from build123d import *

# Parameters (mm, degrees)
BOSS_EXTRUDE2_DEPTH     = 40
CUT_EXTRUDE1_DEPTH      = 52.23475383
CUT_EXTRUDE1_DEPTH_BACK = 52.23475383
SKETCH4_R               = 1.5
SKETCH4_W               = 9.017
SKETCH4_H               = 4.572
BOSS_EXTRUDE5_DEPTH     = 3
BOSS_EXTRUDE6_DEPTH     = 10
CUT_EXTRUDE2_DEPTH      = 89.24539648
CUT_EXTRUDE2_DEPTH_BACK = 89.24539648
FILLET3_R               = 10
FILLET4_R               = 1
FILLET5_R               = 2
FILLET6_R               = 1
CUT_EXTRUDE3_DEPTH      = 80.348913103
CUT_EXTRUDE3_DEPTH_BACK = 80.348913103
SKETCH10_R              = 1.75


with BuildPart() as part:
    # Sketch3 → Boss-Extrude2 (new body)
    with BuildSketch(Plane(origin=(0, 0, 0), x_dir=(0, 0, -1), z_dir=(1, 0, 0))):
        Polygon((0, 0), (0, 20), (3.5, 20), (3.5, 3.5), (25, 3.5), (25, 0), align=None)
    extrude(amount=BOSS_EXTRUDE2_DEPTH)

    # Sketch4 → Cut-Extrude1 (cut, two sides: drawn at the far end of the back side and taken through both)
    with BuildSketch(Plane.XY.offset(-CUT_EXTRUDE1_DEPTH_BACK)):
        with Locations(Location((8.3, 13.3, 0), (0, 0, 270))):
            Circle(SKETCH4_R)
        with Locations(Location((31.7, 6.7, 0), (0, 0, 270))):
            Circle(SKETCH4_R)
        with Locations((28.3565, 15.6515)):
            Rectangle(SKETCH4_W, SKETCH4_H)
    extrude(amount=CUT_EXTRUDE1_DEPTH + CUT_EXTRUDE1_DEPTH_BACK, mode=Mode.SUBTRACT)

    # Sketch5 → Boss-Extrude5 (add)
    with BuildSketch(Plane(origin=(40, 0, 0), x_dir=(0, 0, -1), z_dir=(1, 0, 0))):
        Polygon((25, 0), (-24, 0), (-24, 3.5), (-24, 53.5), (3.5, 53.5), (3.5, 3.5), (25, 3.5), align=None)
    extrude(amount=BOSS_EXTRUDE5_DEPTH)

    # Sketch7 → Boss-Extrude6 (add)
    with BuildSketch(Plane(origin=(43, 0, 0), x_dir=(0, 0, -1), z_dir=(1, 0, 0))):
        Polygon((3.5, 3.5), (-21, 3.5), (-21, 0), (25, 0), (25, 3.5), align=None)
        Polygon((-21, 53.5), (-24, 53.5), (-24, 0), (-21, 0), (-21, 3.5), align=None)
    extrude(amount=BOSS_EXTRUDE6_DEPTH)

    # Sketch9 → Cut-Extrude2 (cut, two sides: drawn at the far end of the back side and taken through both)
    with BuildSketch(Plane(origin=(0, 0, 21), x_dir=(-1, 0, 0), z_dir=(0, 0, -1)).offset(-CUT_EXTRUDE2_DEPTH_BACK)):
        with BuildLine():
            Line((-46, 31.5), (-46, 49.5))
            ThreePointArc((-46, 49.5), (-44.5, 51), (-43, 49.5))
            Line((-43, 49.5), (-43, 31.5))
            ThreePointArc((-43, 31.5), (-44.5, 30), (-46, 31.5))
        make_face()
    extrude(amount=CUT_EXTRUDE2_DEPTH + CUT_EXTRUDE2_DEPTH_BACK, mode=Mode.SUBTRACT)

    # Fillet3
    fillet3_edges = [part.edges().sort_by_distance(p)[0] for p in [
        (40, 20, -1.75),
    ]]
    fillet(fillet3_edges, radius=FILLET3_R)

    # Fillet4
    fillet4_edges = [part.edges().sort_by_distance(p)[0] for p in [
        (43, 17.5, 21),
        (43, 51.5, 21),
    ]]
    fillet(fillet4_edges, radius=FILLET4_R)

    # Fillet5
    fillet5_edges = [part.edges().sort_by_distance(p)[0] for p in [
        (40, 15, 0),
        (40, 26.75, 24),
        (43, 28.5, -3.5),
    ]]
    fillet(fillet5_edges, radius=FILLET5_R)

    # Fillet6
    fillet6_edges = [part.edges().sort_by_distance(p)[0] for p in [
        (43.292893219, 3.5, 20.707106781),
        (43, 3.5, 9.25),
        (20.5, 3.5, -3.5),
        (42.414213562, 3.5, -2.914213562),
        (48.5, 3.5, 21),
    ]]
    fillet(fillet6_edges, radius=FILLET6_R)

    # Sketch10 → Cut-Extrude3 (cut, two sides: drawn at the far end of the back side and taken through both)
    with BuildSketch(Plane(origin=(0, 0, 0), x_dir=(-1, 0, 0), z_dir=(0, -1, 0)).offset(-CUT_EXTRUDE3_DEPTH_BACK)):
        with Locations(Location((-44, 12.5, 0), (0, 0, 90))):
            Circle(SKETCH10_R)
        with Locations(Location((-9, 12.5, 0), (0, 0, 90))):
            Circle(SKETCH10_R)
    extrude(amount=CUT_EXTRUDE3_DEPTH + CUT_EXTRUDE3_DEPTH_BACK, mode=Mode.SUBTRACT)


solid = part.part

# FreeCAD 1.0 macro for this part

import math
import FreeCAD as App
import Part
import Sketcher

V = App.Vector
Q = App.Units.Quantity


def edges_at(feature, points):
    """Names of the edges that pass closest to the given points."""
    edges = feature.Shape.Edges
    near = lambda p: min(range(len(edges)), key=lambda i: edges[i].distToShape(Part.Vertex(*p))[0])
    return sorted({f"Edge{near(p) + 1}" for p in points})

doc = App.newDocument("Part")
body = doc.addObject("PartDesign::Body", "Body")

# Sketch on YZ plane
sketch1 = doc.addObject("Sketcher::SketchObject", "Sketch")
body.addObject(sketch1)
sketch1.AttachmentSupport = (doc.YZ_Plane, [""])
sketch1.MapMode = "FlatFace"
sketch1.addGeometry(Part.LineSegment(V(20, 0, 0), V(0, 0, 0)), False)
sketch1.addGeometry(Part.LineSegment(V(0, 0, 0), V(0, -25, 0)), False)
sketch1.addGeometry(Part.LineSegment(V(0, -25, 0), V(3.5, -25, 0)), False)
sketch1.addGeometry(Part.LineSegment(V(3.5, -25, 0), V(3.5, -3.5, 0)), False)
sketch1.addGeometry(Part.LineSegment(V(3.5, -3.5, 0), V(20, -3.5, 0)), False)
sketch1.addGeometry(Part.LineSegment(V(20, -3.5, 0), V(20, 0, 0)), False)
sketch1.addConstraint(Sketcher.Constraint("Coincident", 0, 2, 1, 1))
sketch1.addConstraint(Sketcher.Constraint("Coincident", 1, 2, 2, 1))
sketch1.addConstraint(Sketcher.Constraint("Coincident", 2, 2, 3, 1))
sketch1.addConstraint(Sketcher.Constraint("Coincident", 3, 2, 4, 1))
sketch1.addConstraint(Sketcher.Constraint("Coincident", 4, 2, 5, 1))
sketch1.addConstraint(Sketcher.Constraint("Coincident", 5, 2, 0, 1))
sketch1.addConstraint(Sketcher.Constraint("Horizontal", 0))
sketch1.addConstraint(Sketcher.Constraint("Vertical", 1))
sketch1.addConstraint(Sketcher.Constraint("Horizontal", 2))
sketch1.addConstraint(Sketcher.Constraint("Vertical", 3))
sketch1.addConstraint(Sketcher.Constraint("Horizontal", 4))
sketch1.addConstraint(Sketcher.Constraint("Vertical", 5))
sketch1.addConstraint(Sketcher.Constraint("Coincident", 0, 2, -1, 1))
sketch1.addConstraint(Sketcher.Constraint("Equal", 2, 5))
sketch1.addConstraint(Sketcher.Constraint("DistanceX", 0, 2, 0, 1, Q("20 mm")))
sketch1.addConstraint(Sketcher.Constraint("DistanceY", 1, 2, 1, 1, Q("25 mm")))
sketch1.addConstraint(Sketcher.Constraint("DistanceX", 2, 1, 2, 2, Q("3.5 mm")))
pad1 = doc.addObject("PartDesign::Pad", "Pad")
body.addObject(pad1)
pad1.Profile = sketch1
pad1.Length = 40

# Sketch on XY plane
sketch2 = doc.addObject("Sketcher::SketchObject", "Sketch001")
body.addObject(sketch2)
sketch2.AttachmentSupport = (doc.XY_Plane, [""])
sketch2.MapMode = "FlatFace"
sketch2.addGeometry(Part.Circle(V(8.3, 13.3, 0), V(0, 0, 1), 1.5), False)
sketch2.addGeometry(Part.Circle(V(31.7, 6.7, 0), V(0, 0, 1), 1.5), False)
sketch2.addGeometry(Part.LineSegment(V(23.8, 17.9, 0), V(23.8, 13.4, 0)), False)
sketch2.addGeometry(Part.LineSegment(V(23.8, 13.4, 0), V(32.9, 13.4, 0)), False)
sketch2.addGeometry(Part.LineSegment(V(32.9, 13.4, 0), V(32.9, 17.9, 0)), False)
sketch2.addGeometry(Part.LineSegment(V(32.9, 17.9, 0), V(23.8, 17.9, 0)), False)
sketch2.addConstraint(Sketcher.Constraint("Coincident", 2, 2, 3, 1))
sketch2.addConstraint(Sketcher.Constraint("Coincident", 3, 2, 4, 1))
sketch2.addConstraint(Sketcher.Constraint("Coincident", 4, 2, 5, 1))
sketch2.addConstraint(Sketcher.Constraint("Coincident", 5, 2, 2, 1))
sketch2.addConstraint(Sketcher.Constraint("Vertical", 2))
sketch2.addConstraint(Sketcher.Constraint("Horizontal", 3))
sketch2.addConstraint(Sketcher.Constraint("Vertical", 4))
sketch2.addConstraint(Sketcher.Constraint("Horizontal", 5))
sketch2.addConstraint(Sketcher.Constraint("Equal", 0, 1))
sketch2.addConstraint(Sketcher.Constraint("Diameter", 0, Q("3 mm")))
sketch2.addConstraint(Sketcher.Constraint("DistanceX", -1, 1, 0, 3, Q("8.3 mm")))
sketch2.addConstraint(Sketcher.Constraint("DistanceY", -1, 1, 0, 3, Q("13.3 mm")))
sketch2.addConstraint(Sketcher.Constraint("DistanceX", -1, 1, 1, 3, Q("31.7 mm")))
sketch2.addConstraint(Sketcher.Constraint("DistanceY", -1, 1, 1, 3, Q("6.7 mm")))
sketch2.addConstraint(Sketcher.Constraint("DistanceX", 3, 1, 3, 2, Q("9.017 mm")))
sketch2.addConstraint(Sketcher.Constraint("DistanceY", 2, 2, 2, 1, Q("4.572 mm")))
sketch2.addConstraint(Sketcher.Constraint("DistanceX", -1, 1, 2, 2, Q("23.848 mm")))
sketch2.addConstraint(Sketcher.Constraint("DistanceY", -1, 1, 2, 2, Q("13.3655 mm")))
pocket1 = doc.addObject("PartDesign::Pocket", "Pocket")
body.addObject(pocket1)
pocket1.Profile = sketch2
pocket1.Type = "ThroughAll"
pocket1.Midplane = True

# Sketch on YZ plane
sketch3 = doc.addObject("Sketcher::SketchObject", "Sketch002")
body.addObject(sketch3)
sketch3.AttachmentSupport = (doc.YZ_Plane, [""])
sketch3.MapMode = "FlatFace"
sketch3.AttachmentOffset = App.Placement(V(0, 0, 40), App.Rotation())
sketch3.addGeometry(Part.LineSegment(V(0, 24, 0), V(0, -25, 0)), False)
sketch3.addGeometry(Part.LineSegment(V(0, -25, 0), V(3.5, -25, 0)), False)
sketch3.addGeometry(Part.LineSegment(V(3.5, -25, 0), V(3.5, -3.5, 0)), False)
sketch3.addGeometry(Part.LineSegment(V(3.5, -3.5, 0), V(53.5, -3.5, 0)), False)
sketch3.addGeometry(Part.LineSegment(V(53.5, -3.5, 0), V(53.5, 24, 0)), False)
sketch3.addGeometry(Part.LineSegment(V(53.5, 24, 0), V(0, 24, 0)), False)
sketch3.addConstraint(Sketcher.Constraint("Coincident", 0, 2, 1, 1))
sketch3.addConstraint(Sketcher.Constraint("Coincident", 1, 2, 2, 1))
sketch3.addConstraint(Sketcher.Constraint("Coincident", 2, 2, 3, 1))
sketch3.addConstraint(Sketcher.Constraint("Coincident", 3, 2, 4, 1))
sketch3.addConstraint(Sketcher.Constraint("Coincident", 4, 2, 5, 1))
sketch3.addConstraint(Sketcher.Constraint("Coincident", 5, 2, 0, 1))
sketch3.addConstraint(Sketcher.Constraint("Vertical", 0))
sketch3.addConstraint(Sketcher.Constraint("Horizontal", 1))
sketch3.addConstraint(Sketcher.Constraint("Vertical", 2))
sketch3.addConstraint(Sketcher.Constraint("Horizontal", 3))
sketch3.addConstraint(Sketcher.Constraint("Vertical", 4))
sketch3.addConstraint(Sketcher.Constraint("Horizontal", 5))
sketch3.addConstraint(Sketcher.Constraint("PointOnObject", 0, 2, -2))
sketch3.addConstraint(Sketcher.Constraint("DistanceX", 3, 1, 3, 2, Q("50 mm")))
sketch3.addConstraint(Sketcher.Constraint("DistanceY", 0, 2, 0, 1, Q("49 mm")))
sketch3.addConstraint(Sketcher.Constraint("DistanceX", 1, 1, 1, 2, Q("3.5 mm")))
sketch3.addConstraint(Sketcher.Constraint("DistanceY", 2, 1, 2, 2, Q("21.5 mm")))
sketch3.addConstraint(Sketcher.Constraint("DistanceY", 0, 2, -1, 1, Q("25 mm")))
pad2 = doc.addObject("PartDesign::Pad", "Pad001")
body.addObject(pad2)
pad2.Profile = sketch3
pad2.Length = 3

# Sketch on YZ plane
sketch4 = doc.addObject("Sketcher::SketchObject", "Sketch003")
body.addObject(sketch4)
sketch4.AttachmentSupport = (doc.YZ_Plane, [""])
sketch4.MapMode = "FlatFace"
sketch4.AttachmentOffset = App.Placement(V(0, 0, 43), App.Rotation())
sketch4.addGeometry(Part.LineSegment(V(0, -25, 0), V(3.5, -25, 0)), False)
sketch4.addGeometry(Part.LineSegment(V(3.5, -25, 0), V(3.5, 21, 0)), False)
sketch4.addGeometry(Part.LineSegment(V(3.5, 21, 0), V(53.5, 21, 0)), False)
sketch4.addGeometry(Part.LineSegment(V(53.5, 21, 0), V(53.5, 24, 0)), False)
sketch4.addGeometry(Part.LineSegment(V(53.5, 24, 0), V(0, 24, 0)), False)
sketch4.addGeometry(Part.LineSegment(V(0, 24, 0), V(0, -25, 0)), False)
sketch4.addConstraint(Sketcher.Constraint("Coincident", 0, 2, 1, 1))
sketch4.addConstraint(Sketcher.Constraint("Coincident", 1, 2, 2, 1))
sketch4.addConstraint(Sketcher.Constraint("Coincident", 2, 2, 3, 1))
sketch4.addConstraint(Sketcher.Constraint("Coincident", 3, 2, 4, 1))
sketch4.addConstraint(Sketcher.Constraint("Coincident", 4, 2, 5, 1))
sketch4.addConstraint(Sketcher.Constraint("Coincident", 5, 2, 0, 1))
sketch4.addConstraint(Sketcher.Constraint("Horizontal", 0))
sketch4.addConstraint(Sketcher.Constraint("Vertical", 1))
sketch4.addConstraint(Sketcher.Constraint("Horizontal", 2))
sketch4.addConstraint(Sketcher.Constraint("Vertical", 3))
sketch4.addConstraint(Sketcher.Constraint("Horizontal", 4))
sketch4.addConstraint(Sketcher.Constraint("Vertical", 5))
sketch4.addConstraint(Sketcher.Constraint("PointOnObject", 4, 2, -2))
sketch4.addConstraint(Sketcher.Constraint("DistanceX", 2, 1, 2, 2, Q("50 mm")))
sketch4.addConstraint(Sketcher.Constraint("DistanceY", 1, 1, 1, 2, Q("46 mm")))
sketch4.addConstraint(Sketcher.Constraint("DistanceY", 3, 1, 3, 2, Q("3 mm")))
sketch4.addConstraint(Sketcher.Constraint("DistanceX", 0, 1, 0, 2, Q("3.5 mm")))
sketch4.addConstraint(Sketcher.Constraint("DistanceY", 0, 2, -1, 1, Q("25 mm")))
pad3 = doc.addObject("PartDesign::Pad", "Pad002")
body.addObject(pad3)
pad3.Profile = sketch4
pad3.Length = 10

# Sketch on XY plane
sketch5 = doc.addObject("Sketcher::SketchObject", "Sketch004")
body.addObject(sketch5)
sketch5.AttachmentSupport = (doc.XY_Plane, [""])
sketch5.MapMode = "FlatFace"
sketch5.AttachmentOffset = App.Placement(V(0, 0, 21), App.Rotation())
sketch5.addGeometry(Part.LineSegment(V(46, 49.5, 0), V(46, 31.5, 0)), False)
sketch5.addGeometry(Part.ArcOfCircle(Part.Circle(V(44.5, 31.5, 0), V(0, 0, 1), 1.5), math.radians(180), math.radians(360)), False)
sketch5.addGeometry(Part.LineSegment(V(43, 31.5, 0), V(43, 49.5, 0)), False)
sketch5.addGeometry(Part.ArcOfCircle(Part.Circle(V(44.5, 49.5, 0), V(0, 0, 1), 1.5), math.radians(0), math.radians(180)), False)
sketch5.addConstraint(Sketcher.Constraint("Tangent", 0, 2, 1, 2))
sketch5.addConstraint(Sketcher.Constraint("Tangent", 1, 1, 2, 1))
sketch5.addConstraint(Sketcher.Constraint("Tangent", 2, 2, 3, 2))
sketch5.addConstraint(Sketcher.Constraint("Tangent", 3, 1, 0, 1))
sketch5.addConstraint(Sketcher.Constraint("Vertical", 0))
sketch5.addConstraint(Sketcher.Constraint("Vertical", 2))
sketch5.addConstraint(Sketcher.Constraint("Radius", 1, Q("1.5 mm")))
sketch5.addConstraint(Sketcher.Constraint("DistanceY", 0, 2, 0, 1, Q("18 mm")))
sketch5.addConstraint(Sketcher.Constraint("DistanceX", -1, 1, 0, 2, Q("46 mm")))
sketch5.addConstraint(Sketcher.Constraint("DistanceY", -1, 1, 1, 3, Q("31.5 mm")))
pocket2 = doc.addObject("PartDesign::Pocket", "Pocket001")
body.addObject(pocket2)
pocket2.Profile = sketch5
pocket2.Type = "ThroughAll"
pocket2.Midplane = True
doc.recompute()

fillet = doc.addObject("PartDesign::Fillet", "Fillet")
body.addObject(fillet)
fillet.Base = (pocket2, edges_at(pocket2, [(40, 20, -1.75)]))
fillet.Radius = 10
doc.recompute()

fillet2 = doc.addObject("PartDesign::Fillet", "Fillet001")
body.addObject(fillet2)
fillet2.Base = (fillet, edges_at(fillet, [(43, 17.5, 21), (43, 51.5, 21)]))
fillet2.Radius = 1
doc.recompute()

fillet3 = doc.addObject("PartDesign::Fillet", "Fillet002")
body.addObject(fillet3)
fillet3.Base = (fillet2, edges_at(fillet2, [(40, 15, 0), (40, 26.75, 24), (43, 28.5, -3.5)]))
fillet3.Radius = 2
doc.recompute()

fillet4 = doc.addObject("PartDesign::Fillet", "Fillet003")
body.addObject(fillet4)
fillet4.Base = (fillet3, edges_at(fillet3, [
    (43.293, 3.5, 20.707),
    (43, 3.5, 9.25),
    (20.5, 3.5, -3.5),
    (42.414, 3.5, -2.914),
    (48.5, 3.5, 21),
]))
fillet4.Radius = 1

# Sketch on XZ plane
sketch6 = doc.addObject("Sketcher::SketchObject", "Sketch005")
body.addObject(sketch6)
sketch6.AttachmentSupport = (doc.XZ_Plane, [""])
sketch6.MapMode = "FlatFace"
sketch6.addGeometry(Part.Circle(V(44, -12.5, 0), V(0, 0, 1), 1.8), False)
sketch6.addGeometry(Part.Circle(V(9, -12.5, 0), V(0, 0, 1), 1.8), False)
sketch6.addConstraint(Sketcher.Constraint("Equal", 0, 1))
sketch6.addConstraint(Sketcher.Constraint("Horizontal", 0, 3, 1, 3))
sketch6.addConstraint(Sketcher.Constraint("Diameter", 0, Q("3.5 mm")))
sketch6.addConstraint(Sketcher.Constraint("DistanceX", -1, 1, 0, 3, Q("44 mm")))
sketch6.addConstraint(Sketcher.Constraint("DistanceX", -1, 1, 1, 3, Q("9 mm")))
sketch6.addConstraint(Sketcher.Constraint("DistanceY", 0, 3, -1, 1, Q("12.5 mm")))
pocket3 = doc.addObject("PartDesign::Pocket", "Pocket002")
body.addObject(pocket3)
pocket3.Profile = sketch6
pocket3.Type = "ThroughAll"
pocket3.Midplane = True

doc.recompute()
